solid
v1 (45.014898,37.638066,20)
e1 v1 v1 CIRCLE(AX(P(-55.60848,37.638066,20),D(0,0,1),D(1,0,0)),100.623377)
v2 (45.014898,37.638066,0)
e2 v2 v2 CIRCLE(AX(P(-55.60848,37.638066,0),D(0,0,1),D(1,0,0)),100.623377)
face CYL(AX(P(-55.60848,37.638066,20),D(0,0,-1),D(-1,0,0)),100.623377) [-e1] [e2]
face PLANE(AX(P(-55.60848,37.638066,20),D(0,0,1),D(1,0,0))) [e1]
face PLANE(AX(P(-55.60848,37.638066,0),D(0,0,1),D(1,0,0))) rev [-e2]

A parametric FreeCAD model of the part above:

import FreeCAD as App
import Part
import Sketcher

doc = App.newDocument("Part")
body = doc.addObject("PartDesign::Body", "Body")

sketch1 = doc.addObject("Sketcher::SketchObject", "Sketch")
body.addObject(sketch1)
sketch1.AttachmentSupport = (doc.XY_Plane, [""])
sketch1.MapMode = "FlatFace"
sketch1.addGeometry(Part.Circle(App.Vector(-56, 38, 0), App.Vector(0, 0, 1), 101), False)
sketch1.addConstraint([
    Sketcher.Constraint("Diameter", 0, 201.246755),
    Sketcher.Constraint("DistanceX", 0, 3, -1, 1, 55.60848),
    Sketcher.Constraint("DistanceY", -1, 1, 0, 3, 37.638066),
])
pad1 = doc.addObject("PartDesign::Pad", "Pad")
body.addObject(pad1)
pad1.Profile = sketch1
pad1.Length = 20

doc.recompute()
